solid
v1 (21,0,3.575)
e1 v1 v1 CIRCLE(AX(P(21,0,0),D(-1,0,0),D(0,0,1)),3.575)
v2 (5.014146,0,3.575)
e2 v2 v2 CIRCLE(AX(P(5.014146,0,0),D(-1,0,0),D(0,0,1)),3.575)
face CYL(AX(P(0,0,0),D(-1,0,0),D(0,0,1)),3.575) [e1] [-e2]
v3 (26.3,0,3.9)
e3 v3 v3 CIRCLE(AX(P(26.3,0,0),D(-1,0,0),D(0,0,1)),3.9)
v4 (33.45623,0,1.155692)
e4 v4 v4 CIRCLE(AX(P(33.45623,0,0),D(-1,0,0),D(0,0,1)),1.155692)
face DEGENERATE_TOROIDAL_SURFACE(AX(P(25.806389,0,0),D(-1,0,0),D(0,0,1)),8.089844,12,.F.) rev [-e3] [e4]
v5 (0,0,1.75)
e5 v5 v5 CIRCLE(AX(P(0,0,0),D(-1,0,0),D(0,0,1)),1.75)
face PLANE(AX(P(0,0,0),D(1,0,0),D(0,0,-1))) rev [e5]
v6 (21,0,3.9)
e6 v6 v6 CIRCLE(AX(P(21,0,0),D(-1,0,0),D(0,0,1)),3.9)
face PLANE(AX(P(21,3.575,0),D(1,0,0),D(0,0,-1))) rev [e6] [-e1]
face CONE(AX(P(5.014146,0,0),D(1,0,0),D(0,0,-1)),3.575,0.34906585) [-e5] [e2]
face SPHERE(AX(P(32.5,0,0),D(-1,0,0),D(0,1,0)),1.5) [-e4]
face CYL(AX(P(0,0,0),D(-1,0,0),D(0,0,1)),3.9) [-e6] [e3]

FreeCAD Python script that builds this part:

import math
import FreeCAD as App
import Part
import Sketcher
Q = App.Units.Quantity

doc = App.newDocument("Part")
body = doc.addObject("PartDesign::Body", "Body")

sketch1 = body.newObject("Sketcher::SketchObject", "Sketch")
sketch1.AttachmentSupport = (doc.getObject("XY_Plane"), [""])
sketch1.MapMode = "FlatFace"
sketch1.addGeometry([
    Part.LineSegment(App.Vector(0, 1.75, 0), App.Vector(0, 0, 0)),
    Part.LineSegment(App.Vector(0, 0, 0), App.Vector(34, 0, 0)),
    Part.ArcOfCircle(Part.Circle(App.Vector(32.5, 0, 0), App.Vector(0, 0, 1), 1.5), math.radians(0), math.radians(50.39533)),
    Part.ArcOfCircle(Part.Circle(App.Vector(25.806389, -8.089844, 0), App.Vector(0, 0, 1), 12), math.radians(50.39533), math.radians(87.642515)),
    Part.LineSegment(App.Vector(26.3, 3.9, 0), App.Vector(21, 3.9, 0)),
    Part.LineSegment(App.Vector(21, 3.9, 0), App.Vector(21, 3.575, 0)),
    Part.LineSegment(App.Vector(21, 3.575, 0), App.Vector(5.014146, 3.575, 0)),
    Part.LineSegment(App.Vector(5.014146, 3.575, 0), App.Vector(0, 1.75, 0)),
], False)
sketch1.addConstraint([
    Sketcher.Constraint("Coincident", 0, 2, 1, 1),
    Sketcher.Constraint("Coincident", 1, 2, 2, 1),
    Sketcher.Constraint("Tangent", 2, 2, 3, 1),
    Sketcher.Constraint("Coincident", 3, 2, 4, 1),
    Sketcher.Constraint("Coincident", 4, 2, 5, 1),
    Sketcher.Constraint("Coincident", 5, 2, 6, 1),
    Sketcher.Constraint("Coincident", 6, 2, 7, 1),
    Sketcher.Constraint("Coincident", 7, 2, 0, 1),
    Sketcher.Constraint("Vertical", 0),
    Sketcher.Constraint("Horizontal", 1),
    Sketcher.Constraint("Horizontal", 4),
    Sketcher.Constraint("Vertical", 5),
    Sketcher.Constraint("Horizontal", 6),
    Sketcher.Constraint("Coincident", 0, 2, -1, 1),
    Sketcher.Constraint("PointOnObject", 2, 3, -1),
    Sketcher.Constraint("Radius", 3, Q("12 mm")),
    Sketcher.Constraint("Radius", 2, Q("1.5 mm")),
    Sketcher.Constraint("DistanceX", 1, 1, 1, 2, Q("34 mm")),
    Sketcher.Constraint("Angle", 7, Q("-160 deg")),
    Sketcher.Constraint("DistanceX", 4, 2, 4, 1, Q("5.3 mm")),
    Sketcher.Constraint("DistanceX", -1, 1, 4, 2, Q("21 mm")),
    Sketcher.Constraint("DistanceY", 0, 2, 0, 1, Q("1.75 mm")),
    Sketcher.Constraint("DistanceY", -1, 1, 3, 2, Q("3.9 mm")),
    Sketcher.Constraint("DistanceY", 5, 2, 5, 1, Q("0.325 mm")),
])
revolution = body.newObject("PartDesign::Revolution", "Revolution")
revolution.Profile = sketch1
revolution.ReferenceAxis = (sketch1, ["H_Axis"])
revolution.Angle = 360

doc.recompute()
